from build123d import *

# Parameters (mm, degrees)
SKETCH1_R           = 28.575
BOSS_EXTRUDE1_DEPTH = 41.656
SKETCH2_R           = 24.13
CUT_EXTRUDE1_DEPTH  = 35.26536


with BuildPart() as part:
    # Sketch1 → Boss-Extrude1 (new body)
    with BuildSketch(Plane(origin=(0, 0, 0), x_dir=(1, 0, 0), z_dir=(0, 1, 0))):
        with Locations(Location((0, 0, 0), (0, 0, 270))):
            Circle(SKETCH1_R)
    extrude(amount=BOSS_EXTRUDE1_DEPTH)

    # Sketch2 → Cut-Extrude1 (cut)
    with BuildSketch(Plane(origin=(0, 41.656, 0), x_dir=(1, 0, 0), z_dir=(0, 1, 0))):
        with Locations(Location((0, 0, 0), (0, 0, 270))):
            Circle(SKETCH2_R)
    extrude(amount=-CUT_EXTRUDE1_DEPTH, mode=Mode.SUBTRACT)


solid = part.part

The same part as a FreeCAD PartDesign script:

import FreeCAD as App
import Part
import Sketcher

V = App.Vector
Q = App.Units.Quantity

doc = App.newDocument("Part")
body = doc.addObject("PartDesign::Body", "Body")

# Sketch on XZ plane
sketch1 = body.newObject("Sketcher::SketchObject", "Sketch")
sketch1.AttachmentSupport = (doc.getObject("XZ_Plane"), [""])
sketch1.MapMode = "FlatFace"
sketch1.addGeometry(Part.Circle(V(0, 0, 0), V(0, 0, 1), 29), False)
sketch1.addConstraint([
    Sketcher.Constraint("Coincident", 0, 3, -1, 1),
    Sketcher.Constraint("Diameter", 0, Q("2.25 in")),
])
pad1 = body.newObject("PartDesign::Pad", "Pad")
pad1.Profile = sketch1
pad1.Length = Q("1.64 in")
pad1.Reversed = True

# Sketch on XZ plane
sketch2 = body.newObject("Sketcher::SketchObject", "Sketch001")
sketch2.AttachmentSupport = (doc.getObject("XZ_Plane"), [""])
sketch2.MapMode = "FlatFace"
sketch2.AttachmentOffset = App.Placement(V(0, 0, -1.64 * 25.4), App.Rotation())
sketch2.addGeometry(Part.Circle(V(0, 0, 0), V(0, 0, 1), 24), False)
sketch2.addConstraint([
    Sketcher.Constraint("Coincident", 0, 3, -1, 1),
    Sketcher.Constraint("Diameter", 0, Q("1.9 in")),
])
pocket1 = body.newObject("PartDesign::Pocket", "Pocket")
pocket1.Profile = sketch2
pocket1.Length = Q("1.3884 in")
pocket1.Reversed = True

doc.recompute()
